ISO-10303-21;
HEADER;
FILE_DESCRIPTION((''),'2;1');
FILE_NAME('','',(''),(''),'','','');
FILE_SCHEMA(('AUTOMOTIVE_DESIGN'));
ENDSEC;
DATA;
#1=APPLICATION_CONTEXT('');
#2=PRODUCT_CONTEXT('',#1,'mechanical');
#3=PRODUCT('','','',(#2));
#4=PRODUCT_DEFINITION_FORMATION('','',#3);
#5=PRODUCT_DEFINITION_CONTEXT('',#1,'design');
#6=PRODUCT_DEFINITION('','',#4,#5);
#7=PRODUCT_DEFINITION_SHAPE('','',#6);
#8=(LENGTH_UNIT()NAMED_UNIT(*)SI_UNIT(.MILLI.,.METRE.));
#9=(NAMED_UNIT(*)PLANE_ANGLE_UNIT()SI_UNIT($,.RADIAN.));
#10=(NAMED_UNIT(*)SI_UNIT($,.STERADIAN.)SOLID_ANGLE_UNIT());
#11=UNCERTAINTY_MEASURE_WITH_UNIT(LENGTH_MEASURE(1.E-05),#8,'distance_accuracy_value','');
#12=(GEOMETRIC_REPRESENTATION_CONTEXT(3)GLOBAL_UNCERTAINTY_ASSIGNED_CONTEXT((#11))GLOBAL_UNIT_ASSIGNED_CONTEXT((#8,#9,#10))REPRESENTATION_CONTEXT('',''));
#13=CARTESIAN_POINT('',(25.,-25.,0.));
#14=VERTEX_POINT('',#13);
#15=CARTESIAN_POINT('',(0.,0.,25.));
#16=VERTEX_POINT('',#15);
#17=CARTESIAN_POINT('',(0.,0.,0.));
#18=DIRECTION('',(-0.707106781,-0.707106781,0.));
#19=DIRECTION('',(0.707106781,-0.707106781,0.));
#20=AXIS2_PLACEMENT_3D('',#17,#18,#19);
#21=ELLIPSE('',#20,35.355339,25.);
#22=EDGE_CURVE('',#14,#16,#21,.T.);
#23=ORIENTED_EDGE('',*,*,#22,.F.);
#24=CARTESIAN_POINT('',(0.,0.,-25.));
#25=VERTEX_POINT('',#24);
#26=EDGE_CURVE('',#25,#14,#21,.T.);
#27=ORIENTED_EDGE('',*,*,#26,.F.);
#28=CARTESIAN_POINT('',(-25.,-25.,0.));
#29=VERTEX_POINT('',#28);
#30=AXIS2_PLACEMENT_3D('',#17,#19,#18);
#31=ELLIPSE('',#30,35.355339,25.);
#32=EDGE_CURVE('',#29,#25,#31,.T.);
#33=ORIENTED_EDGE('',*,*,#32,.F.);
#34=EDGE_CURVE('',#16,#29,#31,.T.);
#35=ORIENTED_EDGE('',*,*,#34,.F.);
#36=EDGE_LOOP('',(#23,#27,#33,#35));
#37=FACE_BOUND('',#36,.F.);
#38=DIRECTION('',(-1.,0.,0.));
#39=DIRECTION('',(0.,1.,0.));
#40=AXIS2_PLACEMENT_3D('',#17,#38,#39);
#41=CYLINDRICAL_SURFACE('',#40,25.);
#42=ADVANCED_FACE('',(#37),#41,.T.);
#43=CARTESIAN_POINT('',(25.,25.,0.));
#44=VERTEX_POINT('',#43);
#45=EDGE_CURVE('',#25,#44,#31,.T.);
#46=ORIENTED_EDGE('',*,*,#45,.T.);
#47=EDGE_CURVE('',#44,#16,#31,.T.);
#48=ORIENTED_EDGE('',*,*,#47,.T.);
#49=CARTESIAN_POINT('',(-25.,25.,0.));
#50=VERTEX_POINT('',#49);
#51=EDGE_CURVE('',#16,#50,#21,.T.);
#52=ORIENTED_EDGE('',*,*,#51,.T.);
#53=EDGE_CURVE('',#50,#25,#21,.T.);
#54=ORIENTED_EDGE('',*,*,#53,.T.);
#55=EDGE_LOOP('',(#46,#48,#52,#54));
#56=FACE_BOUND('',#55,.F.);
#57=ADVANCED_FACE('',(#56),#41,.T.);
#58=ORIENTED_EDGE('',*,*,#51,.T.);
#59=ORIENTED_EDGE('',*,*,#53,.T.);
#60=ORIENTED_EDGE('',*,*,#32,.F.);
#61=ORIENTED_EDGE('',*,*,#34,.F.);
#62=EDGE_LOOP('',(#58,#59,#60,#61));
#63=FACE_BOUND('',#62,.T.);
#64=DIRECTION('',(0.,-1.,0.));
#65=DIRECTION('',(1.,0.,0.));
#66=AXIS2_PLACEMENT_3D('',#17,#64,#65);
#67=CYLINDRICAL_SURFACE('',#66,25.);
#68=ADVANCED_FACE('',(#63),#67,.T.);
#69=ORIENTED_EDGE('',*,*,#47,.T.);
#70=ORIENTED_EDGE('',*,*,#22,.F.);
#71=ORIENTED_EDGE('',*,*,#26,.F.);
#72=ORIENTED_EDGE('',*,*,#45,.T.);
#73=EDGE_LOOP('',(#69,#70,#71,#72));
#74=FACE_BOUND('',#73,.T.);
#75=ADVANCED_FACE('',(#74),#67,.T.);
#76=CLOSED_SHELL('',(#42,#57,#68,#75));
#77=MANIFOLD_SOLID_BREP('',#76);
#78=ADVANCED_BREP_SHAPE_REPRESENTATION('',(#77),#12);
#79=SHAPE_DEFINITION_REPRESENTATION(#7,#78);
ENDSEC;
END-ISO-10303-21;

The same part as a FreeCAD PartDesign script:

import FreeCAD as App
import Part
import Sketcher
from FreeCAD import Vector
Q = App.Units.Quantity


def add_polygon(sketch, points):
    """Adds a closed chain of lines whose ends are joined by coincident constraints."""
    first, n = sketch.GeometryCount, len(points)
    for a, b in zip(points, points[1:] + points[:1]):
        sketch.addGeometry(Part.LineSegment(App.Vector(*a, 0), App.Vector(*b, 0)), False)
    for i in range(n):
        sketch.addConstraint(Sketcher.Constraint("Coincident", first + i, 2, first + (i + 1) % n, 1))

doc = App.newDocument("Part")
body = doc.addObject("PartDesign::Body", "Body")

# Sketch on XZ plane
sketch1 = doc.addObject("Sketcher::SketchObject", "Sketch")
body.addObject(sketch1)
sketch1.AttachmentSupport = (doc.XZ_Plane, [""])
sketch1.MapMode = "FlatFace"
sketch1.addGeometry(Part.Circle(Vector(0, 0, 0), Vector(0, 0, 1), 25), False)
sketch1.addConstraint([
    Sketcher.Constraint("Coincident", 0, 3, -1, 1),
    Sketcher.Constraint("Diameter", 0, Q("50 mm")),
])
pad1 = doc.addObject("PartDesign::Pad", "Pad")
body.addObject(pad1)
pad1.Profile = sketch1
pad1.Length = 100
pad1.Midplane = True

# Sketch on YZ plane
sketch2 = doc.addObject("Sketcher::SketchObject", "Sketch001")
body.addObject(sketch2)
sketch2.AttachmentSupport = (doc.YZ_Plane, [""])
sketch2.MapMode = "FlatFace"
add_polygon(sketch2, [(-75, 75), (-75, -75), (75, -75), (75, 75)])  # lines 0-3
sketch2.addGeometry(Part.Circle(Vector(0, 0, 0), Vector(0, 0, 1), 25), False)  # 4
sketch2.addConstraint([
    Sketcher.Constraint("Vertical", 0),
    Sketcher.Constraint("Horizontal", 1),
    Sketcher.Constraint("Vertical", 2),
    Sketcher.Constraint("Horizontal", 3),
    Sketcher.Constraint("Coincident", 4, 3, -1, 1),
    Sketcher.Constraint("Symmetric", 0, 2, 2, 2, -1, 1),
    Sketcher.Constraint("Equal", 3, 0),
    Sketcher.Constraint("Diameter", 4, Q("50 mm")),
    Sketcher.Constraint("DistanceX", 1, 1, 1, 2, Q("150 mm")),
])
pocket1 = doc.addObject("PartDesign::Pocket", "Pocket")
body.addObject(pocket1)
pocket1.Profile = sketch2
pocket1.Length = 100
pocket1.Midplane = True

doc.recompute()
